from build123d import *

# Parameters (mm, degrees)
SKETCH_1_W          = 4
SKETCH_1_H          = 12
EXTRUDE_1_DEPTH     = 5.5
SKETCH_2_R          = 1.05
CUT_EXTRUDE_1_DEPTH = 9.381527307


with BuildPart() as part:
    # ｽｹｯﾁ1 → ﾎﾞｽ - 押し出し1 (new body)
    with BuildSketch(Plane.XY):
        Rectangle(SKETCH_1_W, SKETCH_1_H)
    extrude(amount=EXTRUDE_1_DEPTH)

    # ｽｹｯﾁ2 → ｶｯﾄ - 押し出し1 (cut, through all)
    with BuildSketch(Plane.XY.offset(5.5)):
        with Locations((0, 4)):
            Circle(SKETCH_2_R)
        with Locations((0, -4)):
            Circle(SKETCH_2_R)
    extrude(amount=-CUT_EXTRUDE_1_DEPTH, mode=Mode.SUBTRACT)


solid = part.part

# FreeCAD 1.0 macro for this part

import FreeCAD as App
import Part
import Sketcher
from FreeCAD import Vector
Q = App.Units.Quantity


def add_polygon(sketch, points):
    """Adds a closed chain of lines whose ends are joined by coincident constraints."""
    first, n = sketch.GeometryCount, len(points)
    for a, b in zip(points, points[1:] + points[:1]):
        sketch.addGeometry(Part.LineSegment(App.Vector(*a, 0), App.Vector(*b, 0)), False)
    for i in range(n):
        sketch.addConstraint(Sketcher.Constraint("Coincident", first + i, 2, first + (i + 1) % n, 1))

doc = App.newDocument("Part")
body = doc.addObject("PartDesign::Body", "Body")

# Sketch on XY plane
sketch1 = body.newObject("Sketcher::SketchObject", "Sketch")
sketch1.AttachmentSupport = (doc.getObject("XY_Plane"), [""])
sketch1.MapMode = "FlatFace"
add_polygon(sketch1, [(-2, 6), (-2, -6), (2, -6), (2, 6)])  # lines 0-3
sketch1.addConstraint(Sketcher.Constraint("Vertical", 0))
sketch1.addConstraint(Sketcher.Constraint("Horizontal", 1))
sketch1.addConstraint(Sketcher.Constraint("Vertical", 2))
sketch1.addConstraint(Sketcher.Constraint("Horizontal", 3))
sketch1.addConstraint(Sketcher.Constraint("Symmetric", 0, 2, 2, 2, -1, 1))
sketch1.addConstraint(Sketcher.Constraint("DistanceX", 1, 1, 1, 2, Q("4 mm")))
sketch1.addConstraint(Sketcher.Constraint("DistanceY", 0, 2, 0, 1, Q("12 mm")))
pad1 = body.newObject("PartDesign::Pad", "Pad")
pad1.Profile = sketch1
pad1.Length = 5.5

# Sketch on XY plane
sketch2 = body.newObject("Sketcher::SketchObject", "Sketch001")
sketch2.AttachmentSupport = (doc.getObject("XY_Plane"), [""])
sketch2.MapMode = "FlatFace"
sketch2.AttachmentOffset = App.Placement(Vector(0, 0, 5.5), App.Rotation())
sketch2.addGeometry(Part.Circle(Vector(0, 4, 0), Vector(0, 0, 1), 1.1), False)
sketch2.addGeometry(Part.Circle(Vector(0, -4, 0), Vector(0, 0, 1), 1.1), False)
sketch2.addConstraint(Sketcher.Constraint("Equal", 0, 1))
sketch2.addConstraint(Sketcher.Constraint("Symmetric", 0, 3, 1, 3, -1, 1))
sketch2.addConstraint(Sketcher.Constraint("PointOnObject", 0, 3, -2))
sketch2.addConstraint(Sketcher.Constraint("Diameter", 0, Q("2.1 mm")))
sketch2.addConstraint(Sketcher.Constraint("DistanceY", -1, 1, 0, 3, Q("4 mm")))
pocket1 = body.newObject("PartDesign::Pocket", "Pocket")
pocket1.Profile = sketch2
pocket1.Type = "ThroughAll"

doc.recompute()
